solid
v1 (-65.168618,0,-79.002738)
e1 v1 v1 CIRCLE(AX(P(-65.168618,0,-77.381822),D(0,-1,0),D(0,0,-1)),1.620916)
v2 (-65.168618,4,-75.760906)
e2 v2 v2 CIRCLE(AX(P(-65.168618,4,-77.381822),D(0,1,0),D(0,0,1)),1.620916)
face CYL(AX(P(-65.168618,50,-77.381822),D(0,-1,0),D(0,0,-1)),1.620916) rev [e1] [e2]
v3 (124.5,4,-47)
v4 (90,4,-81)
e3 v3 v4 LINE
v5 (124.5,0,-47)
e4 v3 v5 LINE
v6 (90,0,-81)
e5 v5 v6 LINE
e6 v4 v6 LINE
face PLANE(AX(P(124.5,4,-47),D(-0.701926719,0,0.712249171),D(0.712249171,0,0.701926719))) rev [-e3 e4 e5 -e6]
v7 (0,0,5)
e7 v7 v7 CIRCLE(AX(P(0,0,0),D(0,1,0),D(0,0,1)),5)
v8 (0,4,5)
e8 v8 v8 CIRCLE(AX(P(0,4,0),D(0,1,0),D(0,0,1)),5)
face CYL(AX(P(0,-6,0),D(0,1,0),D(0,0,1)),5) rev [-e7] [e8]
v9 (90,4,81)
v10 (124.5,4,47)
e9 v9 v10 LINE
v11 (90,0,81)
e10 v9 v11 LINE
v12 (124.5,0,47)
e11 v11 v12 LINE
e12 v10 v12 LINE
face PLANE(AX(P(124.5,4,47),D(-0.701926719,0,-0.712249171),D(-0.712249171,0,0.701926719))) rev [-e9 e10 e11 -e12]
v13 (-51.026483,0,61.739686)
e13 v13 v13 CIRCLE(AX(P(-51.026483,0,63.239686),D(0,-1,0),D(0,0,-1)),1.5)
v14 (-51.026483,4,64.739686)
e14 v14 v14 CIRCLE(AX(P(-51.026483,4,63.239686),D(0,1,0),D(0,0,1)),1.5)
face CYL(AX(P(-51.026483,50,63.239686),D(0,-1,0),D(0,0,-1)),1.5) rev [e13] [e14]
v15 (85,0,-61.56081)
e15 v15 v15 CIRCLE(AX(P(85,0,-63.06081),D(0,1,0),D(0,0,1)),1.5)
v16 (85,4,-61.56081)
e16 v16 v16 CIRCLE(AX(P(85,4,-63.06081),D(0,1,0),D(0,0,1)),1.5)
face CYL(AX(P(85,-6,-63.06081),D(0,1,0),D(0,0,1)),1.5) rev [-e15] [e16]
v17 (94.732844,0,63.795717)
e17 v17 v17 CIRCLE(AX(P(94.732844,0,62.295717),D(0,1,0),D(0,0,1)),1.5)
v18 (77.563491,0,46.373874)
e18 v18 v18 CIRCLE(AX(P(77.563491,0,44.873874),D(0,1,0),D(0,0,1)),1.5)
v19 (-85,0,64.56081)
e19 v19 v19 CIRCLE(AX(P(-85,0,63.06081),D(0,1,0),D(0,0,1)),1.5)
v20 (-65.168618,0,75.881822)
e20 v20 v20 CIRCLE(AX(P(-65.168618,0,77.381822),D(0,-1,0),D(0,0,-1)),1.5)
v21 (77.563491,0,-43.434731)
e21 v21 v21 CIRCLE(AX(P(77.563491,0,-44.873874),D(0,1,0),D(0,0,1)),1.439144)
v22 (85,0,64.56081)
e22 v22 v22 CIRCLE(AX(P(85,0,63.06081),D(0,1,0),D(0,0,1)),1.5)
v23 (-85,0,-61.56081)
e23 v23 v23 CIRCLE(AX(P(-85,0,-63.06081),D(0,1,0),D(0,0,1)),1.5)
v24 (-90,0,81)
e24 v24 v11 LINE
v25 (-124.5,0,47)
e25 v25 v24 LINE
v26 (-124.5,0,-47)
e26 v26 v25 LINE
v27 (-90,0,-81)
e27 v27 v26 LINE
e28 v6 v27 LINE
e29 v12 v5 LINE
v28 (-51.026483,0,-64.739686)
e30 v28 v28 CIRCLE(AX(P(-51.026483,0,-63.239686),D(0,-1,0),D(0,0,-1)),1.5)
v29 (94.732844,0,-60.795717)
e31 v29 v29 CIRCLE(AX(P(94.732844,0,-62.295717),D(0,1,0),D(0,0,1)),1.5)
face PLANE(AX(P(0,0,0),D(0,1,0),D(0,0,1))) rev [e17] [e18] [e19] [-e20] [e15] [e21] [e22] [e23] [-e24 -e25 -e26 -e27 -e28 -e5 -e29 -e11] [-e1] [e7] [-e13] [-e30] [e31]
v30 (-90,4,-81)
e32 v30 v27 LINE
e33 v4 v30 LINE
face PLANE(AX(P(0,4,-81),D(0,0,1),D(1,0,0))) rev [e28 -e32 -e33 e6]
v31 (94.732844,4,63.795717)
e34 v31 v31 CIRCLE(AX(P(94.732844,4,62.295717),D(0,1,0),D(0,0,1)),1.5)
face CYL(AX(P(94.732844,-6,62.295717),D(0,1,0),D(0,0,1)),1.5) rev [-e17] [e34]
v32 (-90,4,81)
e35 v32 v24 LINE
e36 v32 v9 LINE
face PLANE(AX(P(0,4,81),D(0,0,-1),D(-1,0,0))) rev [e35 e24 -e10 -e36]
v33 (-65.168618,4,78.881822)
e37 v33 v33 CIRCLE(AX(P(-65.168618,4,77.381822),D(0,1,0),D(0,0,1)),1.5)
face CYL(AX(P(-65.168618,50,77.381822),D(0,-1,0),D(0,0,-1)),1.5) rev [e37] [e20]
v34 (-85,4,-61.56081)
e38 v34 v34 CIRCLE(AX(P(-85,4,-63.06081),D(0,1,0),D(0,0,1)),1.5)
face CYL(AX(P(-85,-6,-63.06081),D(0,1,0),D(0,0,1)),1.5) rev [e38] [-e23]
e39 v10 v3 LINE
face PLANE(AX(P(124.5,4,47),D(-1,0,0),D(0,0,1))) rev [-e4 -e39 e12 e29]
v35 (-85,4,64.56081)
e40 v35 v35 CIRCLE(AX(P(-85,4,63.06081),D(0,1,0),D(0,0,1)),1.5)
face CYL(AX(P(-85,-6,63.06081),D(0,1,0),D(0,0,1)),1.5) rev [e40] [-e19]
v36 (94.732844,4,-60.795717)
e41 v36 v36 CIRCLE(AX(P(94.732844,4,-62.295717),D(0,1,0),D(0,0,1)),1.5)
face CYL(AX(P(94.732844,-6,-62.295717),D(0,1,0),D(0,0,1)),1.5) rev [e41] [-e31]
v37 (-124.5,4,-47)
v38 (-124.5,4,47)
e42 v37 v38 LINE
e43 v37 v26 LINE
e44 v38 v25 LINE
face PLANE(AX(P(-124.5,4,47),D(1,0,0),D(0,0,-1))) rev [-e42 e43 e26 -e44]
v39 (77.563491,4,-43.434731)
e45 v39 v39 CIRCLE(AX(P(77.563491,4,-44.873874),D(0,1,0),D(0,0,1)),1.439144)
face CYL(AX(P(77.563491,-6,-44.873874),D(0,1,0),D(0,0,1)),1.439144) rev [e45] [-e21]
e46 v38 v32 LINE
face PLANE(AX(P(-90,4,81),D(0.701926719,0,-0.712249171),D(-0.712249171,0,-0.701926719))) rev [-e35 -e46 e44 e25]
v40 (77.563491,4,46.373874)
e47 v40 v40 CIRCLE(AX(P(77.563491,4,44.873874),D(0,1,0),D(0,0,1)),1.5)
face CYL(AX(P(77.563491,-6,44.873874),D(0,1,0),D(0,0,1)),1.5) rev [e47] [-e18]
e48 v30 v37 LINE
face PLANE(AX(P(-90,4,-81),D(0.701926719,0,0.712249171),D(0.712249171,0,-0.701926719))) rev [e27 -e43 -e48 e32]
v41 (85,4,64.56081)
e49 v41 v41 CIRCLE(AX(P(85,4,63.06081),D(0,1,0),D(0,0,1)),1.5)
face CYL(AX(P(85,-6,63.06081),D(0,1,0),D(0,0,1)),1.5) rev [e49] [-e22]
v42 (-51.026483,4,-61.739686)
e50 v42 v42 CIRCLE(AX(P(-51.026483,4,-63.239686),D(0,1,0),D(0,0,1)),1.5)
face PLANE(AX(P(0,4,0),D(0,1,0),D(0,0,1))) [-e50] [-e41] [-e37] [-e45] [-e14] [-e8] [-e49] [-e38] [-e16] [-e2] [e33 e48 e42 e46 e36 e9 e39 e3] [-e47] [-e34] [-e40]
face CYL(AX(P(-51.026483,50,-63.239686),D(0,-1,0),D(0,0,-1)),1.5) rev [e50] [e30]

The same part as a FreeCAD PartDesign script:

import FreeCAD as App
import Part
import Sketcher

doc = App.newDocument("Part")
body = doc.addObject("PartDesign::Body", "Body")

# Sketch on XZ plane
sketch1 = body.newObject("Sketcher::SketchObject", "Sketch")
sketch1.AttachmentSupport = (doc.getObject("XZ_Plane"), [""])
sketch1.MapMode = "FlatFace"
sketch1.addGeometry(Part.LineSegment(App.Vector(-90, -81, 0), App.Vector(-124, -47, 0)), False)
sketch1.addGeometry(Part.LineSegment(App.Vector(-124, -47, 0), App.Vector(-124, 47, 0)), False)
sketch1.addGeometry(Part.LineSegment(App.Vector(-124, 47, 0), App.Vector(-90, 81, 0)), False)
sketch1.addGeometry(Part.LineSegment(App.Vector(-90, 81, 0), App.Vector(90, 81, 0)), False)
sketch1.addGeometry(Part.LineSegment(App.Vector(90, 81, 0), App.Vector(124, 47, 0)), False)
sketch1.addGeometry(Part.LineSegment(App.Vector(124, 47, 0), App.Vector(124, -47, 0)), False)
sketch1.addGeometry(Part.LineSegment(App.Vector(124, -47, 0), App.Vector(90, -81, 0)), False)
sketch1.addGeometry(Part.LineSegment(App.Vector(90, -81, 0), App.Vector(-90, -81, 0)), False)
sketch1.addConstraint(Sketcher.Constraint("Coincident", 0, 2, 1, 1))
sketch1.addConstraint(Sketcher.Constraint("Coincident", 1, 2, 2, 1))
sketch1.addConstraint(Sketcher.Constraint("Coincident", 2, 2, 3, 1))
sketch1.addConstraint(Sketcher.Constraint("Coincident", 3, 2, 4, 1))
sketch1.addConstraint(Sketcher.Constraint("Coincident", 4, 2, 5, 1))
sketch1.addConstraint(Sketcher.Constraint("Coincident", 5, 2, 6, 1))
sketch1.addConstraint(Sketcher.Constraint("Coincident", 6, 2, 7, 1))
sketch1.addConstraint(Sketcher.Constraint("Coincident", 7, 2, 0, 1))
sketch1.addConstraint(Sketcher.Constraint("Vertical", 1))
sketch1.addConstraint(Sketcher.Constraint("Horizontal", 3))
sketch1.addConstraint(Sketcher.Constraint("Vertical", 5))
sketch1.addConstraint(Sketcher.Constraint("Horizontal", 7))
sketch1.addConstraint(Sketcher.Constraint("Symmetric", 0, 2, 4, 2, -1, 1))
sketch1.addConstraint(Sketcher.Constraint("Symmetric", 2, 2, 6, 2, -1, 1))
sketch1.addConstraint(Sketcher.Constraint("Parallel", 0, 4))
sketch1.addConstraint(Sketcher.Constraint("Parallel", 2, 6))
sketch1.addConstraint(Sketcher.Constraint("Horizontal", 1, 2, 4, 2))
sketch1.addConstraint(Sketcher.Constraint("Vertical", 3, 2, 6, 2))
sketch1.addConstraint(Sketcher.Constraint("DistanceX", 3, 1, 3, 2, 180.0))
sketch1.addConstraint(Sketcher.Constraint("DistanceY", 1, 1, 1, 2, 94.0))
sketch1.addConstraint(Sketcher.Constraint("DistanceY", -1, 1, 2, 2, 81.0))
sketch1.addConstraint(Sketcher.Constraint("DistanceX", 1, 2, 4, 2, 249.0))
pad1 = body.newObject("PartDesign::Pad", "Pad")
pad1.Profile = sketch1
pad1.Length = 4
pad1.Reversed = True

# Sketch on XZ plane
sketch2 = body.newObject("Sketcher::SketchObject", "Sketch001")
sketch2.AttachmentSupport = (doc.getObject("XZ_Plane"), [""])
sketch2.MapMode = "FlatFace"
sketch2.AttachmentOffset = App.Placement(App.Vector(0, 0, -4), App.Rotation())
sketch2.addGeometry(Part.Circle(App.Vector(-85, -63.1, 0), App.Vector(0, 0, 1), 1.5), False)
sketch2.addGeometry(Part.Circle(App.Vector(-85, 63.1, 0), App.Vector(0, 0, 1), 1.5), False)
sketch2.addGeometry(Part.Circle(App.Vector(85, 63.1, 0), App.Vector(0, 0, 1), 1.5), False)
sketch2.addGeometry(Part.Circle(App.Vector(85, -63.1, 0), App.Vector(0, 0, 1), 1.5), False)
sketch2.addConstraint(Sketcher.Constraint("Equal", 0, 1))
sketch2.addConstraint(Sketcher.Constraint("Equal", 1, 2))
sketch2.addConstraint(Sketcher.Constraint("Equal", 2, 3))
sketch2.addConstraint(Sketcher.Constraint("Symmetric", 0, 3, 2, 3, -1, 1))
sketch2.addConstraint(Sketcher.Constraint("Symmetric", 1, 3, 3, 3, -1, 1))
sketch2.addConstraint(Sketcher.Constraint("Symmetric", 1, 3, 2, 3, -2))
sketch2.addConstraint(Sketcher.Constraint("Diameter", 0, 3.0))
sketch2.addConstraint(Sketcher.Constraint("DistanceX", 0, 3, -1, 1, 85.0))
sketch2.addConstraint(Sketcher.Constraint("DistanceY", 0, 3, -1, 1, 63.06081))
pocket1 = body.newObject("PartDesign::Pocket", "Pocket")
pocket1.Profile = sketch2
pocket1.Length = 10
pocket1.Reversed = True

# Sketch on XZ plane
sketch3 = body.newObject("Sketcher::SketchObject", "Sketch002")
sketch3.AttachmentSupport = (doc.getObject("XZ_Plane"), [""])
sketch3.MapMode = "FlatFace"
sketch3.AttachmentOffset = App.Placement(App.Vector(0, 0, -4), App.Rotation())
sketch3.addGeometry(Part.Circle(App.Vector(94.7, 62.3, 0), App.Vector(0, 0, 1), 1.5), False)
sketch3.addGeometry(Part.Circle(App.Vector(77.6, 44.9, 0), App.Vector(0, 0, 1), 1.5), False)
sketch3.addGeometry(Part.Circle(App.Vector(77.6, -44.9, 0), App.Vector(0, 0, 1), 1.4), False)
sketch3.addGeometry(Part.Circle(App.Vector(94.7, -62.3, 0), App.Vector(0, 0, 1), 1.5), False)
sketch3.addConstraint(Sketcher.Constraint("Equal", 0, 1))
sketch3.addConstraint(Sketcher.Constraint("Equal", 1, 3))
sketch3.addConstraint(Sketcher.Constraint("Symmetric", 1, 3, 2, 3, -1))
sketch3.addConstraint(Sketcher.Constraint("Symmetric", 0, 3, 3, 3, -1))
sketch3.addConstraint(Sketcher.Constraint("Diameter", 0, 3.0))
sketch3.addConstraint(Sketcher.Constraint("Diameter", 2, 2.878287))
sketch3.addConstraint(Sketcher.Constraint("DistanceX", -1, 1, 1, 3, 77.563491))
sketch3.addConstraint(Sketcher.Constraint("DistanceY", 2, 3, 1, 3, 89.747749))
sketch3.addConstraint(Sketcher.Constraint("DistanceY", 2, 3, 0, 3, 107.169592))
sketch3.addConstraint(Sketcher.Constraint("DistanceX", -1, 1, 0, 3, 94.732844))
pocket2 = body.newObject("PartDesign::Pocket", "Pocket001")
pocket2.Profile = sketch3
pocket2.Length = 10
pocket2.Reversed = True

# Sketch on XZ plane
sketch4 = body.newObject("Sketcher::SketchObject", "Sketch003")
sketch4.AttachmentSupport = (doc.getObject("XZ_Plane"), [""])
sketch4.MapMode = "FlatFace"
sketch4.addGeometry(Part.Circle(App.Vector(-65.2, -77.4, 0), App.Vector(0, 0, 1), 1.6), False)
sketch4.addGeometry(Part.Circle(App.Vector(-51, -63.2, 0), App.Vector(0, 0, 1), 1.5), False)
sketch4.addGeometry(Part.Circle(App.Vector(-65.2, 77.4, 0), App.Vector(0, 0, 1), 1.5), False)
sketch4.addGeometry(Part.Circle(App.Vector(-51, 63.2, 0), App.Vector(0, 0, 1), 1.5), False)
sketch4.addConstraint(Sketcher.Constraint("Equal", 1, 2))
sketch4.addConstraint(Sketcher.Constraint("Equal", 2, 3))
sketch4.addConstraint(Sketcher.Constraint("Symmetric", 0, 3, 2, 3, -1))
sketch4.addConstraint(Sketcher.Constraint("Symmetric", 1, 3, 3, 3, -1))
sketch4.addConstraint(Sketcher.Constraint("Diameter", 1, 3.0))
sketch4.addConstraint(Sketcher.Constraint("Diameter", 0, 3.241832))
sketch4.addConstraint(Sketcher.Constraint("DistanceX", 0, 3, -1, 1, 65.168618))
sketch4.addConstraint(Sketcher.Constraint("DistanceY", 0, 3, -1, 1, 77.381822))
sketch4.addConstraint(Sketcher.Constraint("DistanceY", 1, 3, 2, 3, 140.621508))
sketch4.addConstraint(Sketcher.Constraint("DistanceX", 1, 3, -1, 1, 51.026483))
pocket3 = body.newObject("PartDesign::Pocket", "Pocket002")
pocket3.Profile = sketch4
pocket3.Length = 50

# Sketch on XZ plane
sketch5 = body.newObject("Sketcher::SketchObject", "Sketch004")
sketch5.AttachmentSupport = (doc.getObject("XZ_Plane"), [""])
sketch5.MapMode = "FlatFace"
sketch5.AttachmentOffset = App.Placement(App.Vector(0, 0, -4), App.Rotation())
sketch5.addGeometry(Part.Circle(App.Vector(0, 0, 0), App.Vector(0, 0, 1), 5), False)
sketch5.addConstraint(Sketcher.Constraint("Coincident", 0, 3, -1, 1))
sketch5.addConstraint(Sketcher.Constraint("Diameter", 0, 10.0))
pocket4 = body.newObject("PartDesign::Pocket", "Pocket003")
pocket4.Profile = sketch5
pocket4.Length = 10
pocket4.Reversed = True

doc.recompute()
